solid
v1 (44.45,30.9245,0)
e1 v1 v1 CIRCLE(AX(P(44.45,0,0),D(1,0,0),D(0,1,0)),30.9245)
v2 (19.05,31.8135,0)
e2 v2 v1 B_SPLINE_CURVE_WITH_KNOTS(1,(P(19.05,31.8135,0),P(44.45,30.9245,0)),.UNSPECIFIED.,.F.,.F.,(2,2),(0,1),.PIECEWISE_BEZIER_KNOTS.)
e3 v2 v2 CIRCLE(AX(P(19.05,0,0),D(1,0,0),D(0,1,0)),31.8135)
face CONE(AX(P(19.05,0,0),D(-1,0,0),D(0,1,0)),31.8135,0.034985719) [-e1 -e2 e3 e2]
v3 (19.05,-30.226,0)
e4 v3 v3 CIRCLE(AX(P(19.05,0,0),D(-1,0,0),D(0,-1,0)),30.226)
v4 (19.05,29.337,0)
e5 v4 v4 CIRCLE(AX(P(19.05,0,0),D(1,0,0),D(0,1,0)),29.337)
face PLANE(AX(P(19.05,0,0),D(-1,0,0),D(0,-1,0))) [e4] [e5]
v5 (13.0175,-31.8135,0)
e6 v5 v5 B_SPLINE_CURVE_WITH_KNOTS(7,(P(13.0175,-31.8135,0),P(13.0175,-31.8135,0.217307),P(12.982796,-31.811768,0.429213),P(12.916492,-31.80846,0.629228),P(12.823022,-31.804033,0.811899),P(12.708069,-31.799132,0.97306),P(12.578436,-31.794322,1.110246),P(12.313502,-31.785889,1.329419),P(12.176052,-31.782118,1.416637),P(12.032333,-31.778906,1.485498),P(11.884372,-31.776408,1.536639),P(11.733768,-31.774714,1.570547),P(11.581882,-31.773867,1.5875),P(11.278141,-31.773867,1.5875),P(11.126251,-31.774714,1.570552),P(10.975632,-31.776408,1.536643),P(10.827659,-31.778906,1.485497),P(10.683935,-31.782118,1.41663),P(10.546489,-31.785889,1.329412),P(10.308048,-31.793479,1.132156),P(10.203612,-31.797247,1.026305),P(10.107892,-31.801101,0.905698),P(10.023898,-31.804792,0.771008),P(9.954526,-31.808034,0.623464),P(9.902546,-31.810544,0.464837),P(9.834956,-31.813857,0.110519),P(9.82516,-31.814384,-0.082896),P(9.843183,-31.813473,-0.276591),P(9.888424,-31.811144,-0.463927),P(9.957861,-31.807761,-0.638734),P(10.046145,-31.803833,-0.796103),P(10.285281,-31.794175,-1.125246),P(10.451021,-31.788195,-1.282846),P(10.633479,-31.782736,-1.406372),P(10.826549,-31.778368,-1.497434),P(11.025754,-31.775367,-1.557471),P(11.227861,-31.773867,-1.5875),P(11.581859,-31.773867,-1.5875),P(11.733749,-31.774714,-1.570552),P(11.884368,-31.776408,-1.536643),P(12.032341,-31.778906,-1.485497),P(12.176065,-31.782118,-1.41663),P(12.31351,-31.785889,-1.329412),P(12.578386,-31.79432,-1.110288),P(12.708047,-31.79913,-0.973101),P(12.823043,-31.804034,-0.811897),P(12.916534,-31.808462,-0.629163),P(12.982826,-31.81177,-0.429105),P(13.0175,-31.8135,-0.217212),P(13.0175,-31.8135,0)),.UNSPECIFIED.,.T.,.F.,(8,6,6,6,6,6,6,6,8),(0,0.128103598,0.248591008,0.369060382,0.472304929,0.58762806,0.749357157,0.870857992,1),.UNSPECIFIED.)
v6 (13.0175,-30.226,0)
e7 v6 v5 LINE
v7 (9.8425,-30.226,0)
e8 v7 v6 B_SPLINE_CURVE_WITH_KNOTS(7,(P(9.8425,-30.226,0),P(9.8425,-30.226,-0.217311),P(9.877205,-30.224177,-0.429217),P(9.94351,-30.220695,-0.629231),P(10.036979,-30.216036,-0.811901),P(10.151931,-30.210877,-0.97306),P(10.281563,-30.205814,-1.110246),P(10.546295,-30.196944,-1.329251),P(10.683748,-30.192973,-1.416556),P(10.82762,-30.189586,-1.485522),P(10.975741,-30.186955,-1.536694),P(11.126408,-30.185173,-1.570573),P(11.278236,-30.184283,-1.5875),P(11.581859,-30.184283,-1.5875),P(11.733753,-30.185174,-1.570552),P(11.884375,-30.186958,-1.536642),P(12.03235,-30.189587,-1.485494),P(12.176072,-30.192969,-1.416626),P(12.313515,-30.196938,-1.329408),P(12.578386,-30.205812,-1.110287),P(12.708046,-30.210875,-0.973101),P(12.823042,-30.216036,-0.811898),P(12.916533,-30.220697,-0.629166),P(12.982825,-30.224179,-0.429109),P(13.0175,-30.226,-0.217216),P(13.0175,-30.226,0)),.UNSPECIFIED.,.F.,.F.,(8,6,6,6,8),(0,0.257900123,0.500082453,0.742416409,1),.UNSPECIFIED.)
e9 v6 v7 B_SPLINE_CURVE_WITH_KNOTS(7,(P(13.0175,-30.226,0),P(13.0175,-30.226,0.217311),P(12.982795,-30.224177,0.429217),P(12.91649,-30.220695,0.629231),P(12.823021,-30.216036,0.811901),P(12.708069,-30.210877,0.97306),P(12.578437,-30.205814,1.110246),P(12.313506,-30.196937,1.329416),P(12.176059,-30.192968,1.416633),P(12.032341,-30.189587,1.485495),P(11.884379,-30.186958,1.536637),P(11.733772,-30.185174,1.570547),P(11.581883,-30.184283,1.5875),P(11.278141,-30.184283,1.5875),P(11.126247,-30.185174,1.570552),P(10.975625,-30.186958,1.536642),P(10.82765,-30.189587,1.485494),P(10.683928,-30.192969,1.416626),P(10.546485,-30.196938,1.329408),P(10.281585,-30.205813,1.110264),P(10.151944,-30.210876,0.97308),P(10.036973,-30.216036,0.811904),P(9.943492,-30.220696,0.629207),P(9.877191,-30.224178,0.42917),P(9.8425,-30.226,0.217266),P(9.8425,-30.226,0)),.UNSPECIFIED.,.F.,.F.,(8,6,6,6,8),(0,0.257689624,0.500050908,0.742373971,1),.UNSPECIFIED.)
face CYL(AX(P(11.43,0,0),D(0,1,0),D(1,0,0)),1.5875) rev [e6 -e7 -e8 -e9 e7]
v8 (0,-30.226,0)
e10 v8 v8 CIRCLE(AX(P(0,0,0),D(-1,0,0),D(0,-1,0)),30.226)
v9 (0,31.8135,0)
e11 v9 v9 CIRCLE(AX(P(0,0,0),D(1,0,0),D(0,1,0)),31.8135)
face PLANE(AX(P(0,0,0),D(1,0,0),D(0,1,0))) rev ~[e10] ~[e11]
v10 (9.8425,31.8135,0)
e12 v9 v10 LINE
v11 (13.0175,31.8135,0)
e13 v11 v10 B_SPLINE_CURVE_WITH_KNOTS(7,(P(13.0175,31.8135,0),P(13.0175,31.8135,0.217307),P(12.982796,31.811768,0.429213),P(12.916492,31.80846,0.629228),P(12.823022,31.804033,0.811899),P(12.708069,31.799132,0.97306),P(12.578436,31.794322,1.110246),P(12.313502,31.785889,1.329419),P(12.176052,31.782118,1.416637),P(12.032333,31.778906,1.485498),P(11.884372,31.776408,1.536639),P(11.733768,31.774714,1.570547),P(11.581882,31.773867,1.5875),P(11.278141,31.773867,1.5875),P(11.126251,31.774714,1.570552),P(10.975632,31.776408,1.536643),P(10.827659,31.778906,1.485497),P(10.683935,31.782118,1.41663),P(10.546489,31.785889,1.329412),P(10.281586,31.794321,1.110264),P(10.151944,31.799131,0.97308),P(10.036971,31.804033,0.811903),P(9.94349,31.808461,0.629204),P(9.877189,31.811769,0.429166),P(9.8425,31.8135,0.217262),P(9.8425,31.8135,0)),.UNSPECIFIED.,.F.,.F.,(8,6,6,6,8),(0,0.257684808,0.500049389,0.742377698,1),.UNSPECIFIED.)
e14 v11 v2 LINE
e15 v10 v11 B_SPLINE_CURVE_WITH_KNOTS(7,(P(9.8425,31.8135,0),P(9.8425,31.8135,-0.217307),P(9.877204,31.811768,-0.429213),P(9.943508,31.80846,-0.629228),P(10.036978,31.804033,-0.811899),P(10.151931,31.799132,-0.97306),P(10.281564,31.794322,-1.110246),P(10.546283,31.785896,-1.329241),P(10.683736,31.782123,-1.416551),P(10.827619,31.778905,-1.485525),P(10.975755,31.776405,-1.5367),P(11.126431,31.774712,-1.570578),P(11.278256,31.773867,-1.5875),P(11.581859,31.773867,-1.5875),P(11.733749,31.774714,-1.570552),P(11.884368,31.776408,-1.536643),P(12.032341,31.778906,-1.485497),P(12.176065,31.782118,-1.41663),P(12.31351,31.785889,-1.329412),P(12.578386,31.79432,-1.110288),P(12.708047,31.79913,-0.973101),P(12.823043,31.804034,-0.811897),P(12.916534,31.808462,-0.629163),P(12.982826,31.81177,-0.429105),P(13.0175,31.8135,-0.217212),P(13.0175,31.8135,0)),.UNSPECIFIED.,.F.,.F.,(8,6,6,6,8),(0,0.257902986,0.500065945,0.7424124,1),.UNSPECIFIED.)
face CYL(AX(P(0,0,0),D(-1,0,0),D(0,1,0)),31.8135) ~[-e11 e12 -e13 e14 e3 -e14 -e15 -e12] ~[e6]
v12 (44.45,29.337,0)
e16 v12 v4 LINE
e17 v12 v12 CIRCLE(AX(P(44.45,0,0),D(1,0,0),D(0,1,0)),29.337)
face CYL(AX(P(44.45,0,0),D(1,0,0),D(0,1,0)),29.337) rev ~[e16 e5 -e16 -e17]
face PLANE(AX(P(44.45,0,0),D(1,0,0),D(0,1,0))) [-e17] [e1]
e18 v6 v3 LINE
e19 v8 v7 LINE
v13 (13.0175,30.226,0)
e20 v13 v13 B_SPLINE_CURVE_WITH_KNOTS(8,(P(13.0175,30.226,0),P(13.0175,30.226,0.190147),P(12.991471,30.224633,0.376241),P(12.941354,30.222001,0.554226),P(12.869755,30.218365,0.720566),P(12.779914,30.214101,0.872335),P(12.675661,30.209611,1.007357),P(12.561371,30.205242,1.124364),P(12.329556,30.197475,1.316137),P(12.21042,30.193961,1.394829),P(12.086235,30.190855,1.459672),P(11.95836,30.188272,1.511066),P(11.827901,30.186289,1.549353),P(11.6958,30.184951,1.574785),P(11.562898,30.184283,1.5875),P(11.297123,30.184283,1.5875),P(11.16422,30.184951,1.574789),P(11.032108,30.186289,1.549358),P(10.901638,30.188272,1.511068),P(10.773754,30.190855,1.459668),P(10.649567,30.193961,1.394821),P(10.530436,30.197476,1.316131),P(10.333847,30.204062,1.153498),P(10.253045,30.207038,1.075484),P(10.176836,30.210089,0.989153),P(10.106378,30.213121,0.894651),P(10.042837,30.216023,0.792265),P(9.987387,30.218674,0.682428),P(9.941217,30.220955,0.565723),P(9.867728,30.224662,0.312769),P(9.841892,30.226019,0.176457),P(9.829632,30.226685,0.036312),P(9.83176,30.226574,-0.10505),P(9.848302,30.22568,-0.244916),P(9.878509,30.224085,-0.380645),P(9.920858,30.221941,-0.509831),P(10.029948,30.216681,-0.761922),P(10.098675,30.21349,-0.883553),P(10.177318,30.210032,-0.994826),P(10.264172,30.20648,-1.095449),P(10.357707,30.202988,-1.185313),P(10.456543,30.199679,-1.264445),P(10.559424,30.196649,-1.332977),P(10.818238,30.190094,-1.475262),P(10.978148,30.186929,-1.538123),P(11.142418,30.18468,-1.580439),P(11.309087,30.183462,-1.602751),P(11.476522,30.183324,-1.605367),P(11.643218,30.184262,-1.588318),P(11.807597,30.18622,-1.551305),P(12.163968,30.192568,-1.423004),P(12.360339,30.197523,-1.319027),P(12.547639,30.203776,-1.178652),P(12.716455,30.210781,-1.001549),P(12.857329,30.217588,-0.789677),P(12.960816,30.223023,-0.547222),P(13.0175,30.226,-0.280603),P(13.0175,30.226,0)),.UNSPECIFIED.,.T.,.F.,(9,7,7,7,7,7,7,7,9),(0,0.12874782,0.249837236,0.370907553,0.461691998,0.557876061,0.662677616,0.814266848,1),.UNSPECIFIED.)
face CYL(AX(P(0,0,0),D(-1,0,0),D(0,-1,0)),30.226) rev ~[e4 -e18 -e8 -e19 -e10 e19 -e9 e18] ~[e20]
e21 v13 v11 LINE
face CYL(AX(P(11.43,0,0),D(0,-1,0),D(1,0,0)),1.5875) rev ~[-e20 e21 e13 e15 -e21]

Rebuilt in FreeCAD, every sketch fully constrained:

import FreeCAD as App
import Part
import Sketcher
Q = App.Units.Quantity

doc = App.newDocument("Part")
params = doc.addObject("Spreadsheet::Sheet", "Params")
for row, (alias, value) in enumerate([
    ("sketch1_diameter", "2.505 in"),
    ("pad1_length", "0.75 in"),
    ("sketch2_diameter", "2.505 in"),
    ("sketch3_diameter", "2.435 in"),
    ("sketch4_diameter", "2.38 in"),
    ("pocket1_length", "0.75 in"),
    ("sketch5_diameter", "2.31 in"),
    ("sketch6_diameter", "0.125 in"),
], start=1):
    params.set(f"A{row}", alias)
    params.set(f"B{row}", "=" + value)
    params.setAlias(f"B{row}", alias)

body = doc.addObject("PartDesign::Body", "Body")

# Sketch on YZ plane
sketch1 = body.newObject("Sketcher::SketchObject", "Sketch")
sketch1.AttachmentSupport = (doc.getObject("YZ_Plane"), [""])
sketch1.MapMode = "FlatFace"
sketch1.addGeometry(Part.Circle(App.Vector(0, 0, 0), App.Vector(0, 0, 1), 31.8135), False)
sketch1.addConstraint(Sketcher.Constraint("Coincident", 0, 3, -1, 1))
sketch1.addConstraint(Sketcher.Constraint("Diameter", 0, Q("2.505 in")))
sketch1.setExpression("Constraints[1]", "Params.sketch1_diameter")
pad1 = body.newObject("PartDesign::Pad", "Pad")
pad1.Profile = sketch1
pad1.setExpression("Length", "Params.pad1_length")

# Sketch on YZ plane
sketch2 = body.newObject("Sketcher::SketchObject", "Sketch001")
sketch2.AttachmentSupport = (doc.getObject("YZ_Plane"), [""])
sketch2.MapMode = "FlatFace"
sketch2.AttachmentOffset = App.Placement(App.Vector(0, 0, 0.75 * 25.4), App.Rotation())
sketch2.addGeometry(Part.Circle(App.Vector(0, 0, 0), App.Vector(0, 0, 1), 31.8135), False)
sketch2.addConstraint(Sketcher.Constraint("Coincident", 0, 3, -1, 1))
sketch2.addConstraint(Sketcher.Constraint("Diameter", 0, Q("2.505 in")))
sketch2.setExpression("Constraints[1]", "Params.sketch2_diameter")

# Sketch on YZ plane
sketch3 = body.newObject("Sketcher::SketchObject", "Sketch002")
sketch3.AttachmentSupport = (doc.getObject("YZ_Plane"), [""])
sketch3.MapMode = "FlatFace"
sketch3.AttachmentOffset = App.Placement(App.Vector(0, 0, 1.75 * 25.4), App.Rotation())
sketch3.addGeometry(Part.Circle(App.Vector(0, 0, 0), App.Vector(0, 0, 1), 30.9245), False)
sketch3.addConstraint(Sketcher.Constraint("Coincident", 0, 3, -1, 1))
sketch3.addConstraint(Sketcher.Constraint("Diameter", 0, Q("2.435 in")))
sketch3.setExpression("Constraints[1]", "Params.sketch3_diameter")

additiveloft = body.newObject("PartDesign::AdditiveLoft", "AdditiveLoft")
additiveloft.Profile = sketch2
additiveloft.Sections = [sketch3]

# Sketch on YZ plane
sketch4 = body.newObject("Sketcher::SketchObject", "Sketch003")
sketch4.AttachmentSupport = (doc.getObject("YZ_Plane"), [""])
sketch4.MapMode = "FlatFace"
sketch4.addGeometry(Part.Circle(App.Vector(0, 0, 0), App.Vector(0, 0, 1), 30.226), False)
sketch4.addConstraint(Sketcher.Constraint("Coincident", 0, 3, -1, 1))
sketch4.addConstraint(Sketcher.Constraint("Diameter", 0, Q("2.38 in")))
sketch4.setExpression("Constraints[1]", "Params.sketch4_diameter")
pocket1 = body.newObject("PartDesign::Pocket", "Pocket")
pocket1.Profile = sketch4
pocket1.setExpression("Length", "Params.pocket1_length")
pocket1.Reversed = True

# Sketch on YZ plane
sketch5 = body.newObject("Sketcher::SketchObject", "Sketch004")
sketch5.AttachmentSupport = (doc.getObject("YZ_Plane"), [""])
sketch5.MapMode = "FlatFace"
sketch5.AttachmentOffset = App.Placement(App.Vector(0, 0, 1.75 * 25.4), App.Rotation())
sketch5.addGeometry(Part.Circle(App.Vector(0, 0, 0), App.Vector(0, 0, 1), 29.337), False)
sketch5.addConstraint(Sketcher.Constraint("Coincident", 0, 3, -1, 1))
sketch5.addConstraint(Sketcher.Constraint("Diameter", 0, Q("2.31 in")))
sketch5.setExpression("Constraints[1]", "Params.sketch5_diameter")
pocket2 = body.newObject("PartDesign::Pocket", "Pocket001")
pocket2.Profile = sketch5
pocket2.Type = "ThroughAll"

# Sketch on XZ plane
sketch6 = body.newObject("Sketcher::SketchObject", "Sketch005")
sketch6.AttachmentSupport = (doc.getObject("XZ_Plane"), [""])
sketch6.MapMode = "FlatFace"
sketch6.addGeometry(Part.Circle(App.Vector(11.43, 0, 0), App.Vector(0, 0, 1), 1.5875), False)
sketch6.addConstraint(Sketcher.Constraint("PointOnObject", 0, 3, -1))
sketch6.addConstraint(Sketcher.Constraint("Diameter", 0, Q("0.125 in")))
sketch6.addConstraint(Sketcher.Constraint("DistanceX", -1, 1, 0, 3, Q("0.45 in")))
sketch6.setExpression("Constraints[1]", "Params.sketch6_diameter")
pocket3 = body.newObject("PartDesign::Pocket", "Pocket002")
pocket3.Profile = sketch6
pocket3.Type = "ThroughAll"
pocket3.Midplane = True

doc.recompute()
